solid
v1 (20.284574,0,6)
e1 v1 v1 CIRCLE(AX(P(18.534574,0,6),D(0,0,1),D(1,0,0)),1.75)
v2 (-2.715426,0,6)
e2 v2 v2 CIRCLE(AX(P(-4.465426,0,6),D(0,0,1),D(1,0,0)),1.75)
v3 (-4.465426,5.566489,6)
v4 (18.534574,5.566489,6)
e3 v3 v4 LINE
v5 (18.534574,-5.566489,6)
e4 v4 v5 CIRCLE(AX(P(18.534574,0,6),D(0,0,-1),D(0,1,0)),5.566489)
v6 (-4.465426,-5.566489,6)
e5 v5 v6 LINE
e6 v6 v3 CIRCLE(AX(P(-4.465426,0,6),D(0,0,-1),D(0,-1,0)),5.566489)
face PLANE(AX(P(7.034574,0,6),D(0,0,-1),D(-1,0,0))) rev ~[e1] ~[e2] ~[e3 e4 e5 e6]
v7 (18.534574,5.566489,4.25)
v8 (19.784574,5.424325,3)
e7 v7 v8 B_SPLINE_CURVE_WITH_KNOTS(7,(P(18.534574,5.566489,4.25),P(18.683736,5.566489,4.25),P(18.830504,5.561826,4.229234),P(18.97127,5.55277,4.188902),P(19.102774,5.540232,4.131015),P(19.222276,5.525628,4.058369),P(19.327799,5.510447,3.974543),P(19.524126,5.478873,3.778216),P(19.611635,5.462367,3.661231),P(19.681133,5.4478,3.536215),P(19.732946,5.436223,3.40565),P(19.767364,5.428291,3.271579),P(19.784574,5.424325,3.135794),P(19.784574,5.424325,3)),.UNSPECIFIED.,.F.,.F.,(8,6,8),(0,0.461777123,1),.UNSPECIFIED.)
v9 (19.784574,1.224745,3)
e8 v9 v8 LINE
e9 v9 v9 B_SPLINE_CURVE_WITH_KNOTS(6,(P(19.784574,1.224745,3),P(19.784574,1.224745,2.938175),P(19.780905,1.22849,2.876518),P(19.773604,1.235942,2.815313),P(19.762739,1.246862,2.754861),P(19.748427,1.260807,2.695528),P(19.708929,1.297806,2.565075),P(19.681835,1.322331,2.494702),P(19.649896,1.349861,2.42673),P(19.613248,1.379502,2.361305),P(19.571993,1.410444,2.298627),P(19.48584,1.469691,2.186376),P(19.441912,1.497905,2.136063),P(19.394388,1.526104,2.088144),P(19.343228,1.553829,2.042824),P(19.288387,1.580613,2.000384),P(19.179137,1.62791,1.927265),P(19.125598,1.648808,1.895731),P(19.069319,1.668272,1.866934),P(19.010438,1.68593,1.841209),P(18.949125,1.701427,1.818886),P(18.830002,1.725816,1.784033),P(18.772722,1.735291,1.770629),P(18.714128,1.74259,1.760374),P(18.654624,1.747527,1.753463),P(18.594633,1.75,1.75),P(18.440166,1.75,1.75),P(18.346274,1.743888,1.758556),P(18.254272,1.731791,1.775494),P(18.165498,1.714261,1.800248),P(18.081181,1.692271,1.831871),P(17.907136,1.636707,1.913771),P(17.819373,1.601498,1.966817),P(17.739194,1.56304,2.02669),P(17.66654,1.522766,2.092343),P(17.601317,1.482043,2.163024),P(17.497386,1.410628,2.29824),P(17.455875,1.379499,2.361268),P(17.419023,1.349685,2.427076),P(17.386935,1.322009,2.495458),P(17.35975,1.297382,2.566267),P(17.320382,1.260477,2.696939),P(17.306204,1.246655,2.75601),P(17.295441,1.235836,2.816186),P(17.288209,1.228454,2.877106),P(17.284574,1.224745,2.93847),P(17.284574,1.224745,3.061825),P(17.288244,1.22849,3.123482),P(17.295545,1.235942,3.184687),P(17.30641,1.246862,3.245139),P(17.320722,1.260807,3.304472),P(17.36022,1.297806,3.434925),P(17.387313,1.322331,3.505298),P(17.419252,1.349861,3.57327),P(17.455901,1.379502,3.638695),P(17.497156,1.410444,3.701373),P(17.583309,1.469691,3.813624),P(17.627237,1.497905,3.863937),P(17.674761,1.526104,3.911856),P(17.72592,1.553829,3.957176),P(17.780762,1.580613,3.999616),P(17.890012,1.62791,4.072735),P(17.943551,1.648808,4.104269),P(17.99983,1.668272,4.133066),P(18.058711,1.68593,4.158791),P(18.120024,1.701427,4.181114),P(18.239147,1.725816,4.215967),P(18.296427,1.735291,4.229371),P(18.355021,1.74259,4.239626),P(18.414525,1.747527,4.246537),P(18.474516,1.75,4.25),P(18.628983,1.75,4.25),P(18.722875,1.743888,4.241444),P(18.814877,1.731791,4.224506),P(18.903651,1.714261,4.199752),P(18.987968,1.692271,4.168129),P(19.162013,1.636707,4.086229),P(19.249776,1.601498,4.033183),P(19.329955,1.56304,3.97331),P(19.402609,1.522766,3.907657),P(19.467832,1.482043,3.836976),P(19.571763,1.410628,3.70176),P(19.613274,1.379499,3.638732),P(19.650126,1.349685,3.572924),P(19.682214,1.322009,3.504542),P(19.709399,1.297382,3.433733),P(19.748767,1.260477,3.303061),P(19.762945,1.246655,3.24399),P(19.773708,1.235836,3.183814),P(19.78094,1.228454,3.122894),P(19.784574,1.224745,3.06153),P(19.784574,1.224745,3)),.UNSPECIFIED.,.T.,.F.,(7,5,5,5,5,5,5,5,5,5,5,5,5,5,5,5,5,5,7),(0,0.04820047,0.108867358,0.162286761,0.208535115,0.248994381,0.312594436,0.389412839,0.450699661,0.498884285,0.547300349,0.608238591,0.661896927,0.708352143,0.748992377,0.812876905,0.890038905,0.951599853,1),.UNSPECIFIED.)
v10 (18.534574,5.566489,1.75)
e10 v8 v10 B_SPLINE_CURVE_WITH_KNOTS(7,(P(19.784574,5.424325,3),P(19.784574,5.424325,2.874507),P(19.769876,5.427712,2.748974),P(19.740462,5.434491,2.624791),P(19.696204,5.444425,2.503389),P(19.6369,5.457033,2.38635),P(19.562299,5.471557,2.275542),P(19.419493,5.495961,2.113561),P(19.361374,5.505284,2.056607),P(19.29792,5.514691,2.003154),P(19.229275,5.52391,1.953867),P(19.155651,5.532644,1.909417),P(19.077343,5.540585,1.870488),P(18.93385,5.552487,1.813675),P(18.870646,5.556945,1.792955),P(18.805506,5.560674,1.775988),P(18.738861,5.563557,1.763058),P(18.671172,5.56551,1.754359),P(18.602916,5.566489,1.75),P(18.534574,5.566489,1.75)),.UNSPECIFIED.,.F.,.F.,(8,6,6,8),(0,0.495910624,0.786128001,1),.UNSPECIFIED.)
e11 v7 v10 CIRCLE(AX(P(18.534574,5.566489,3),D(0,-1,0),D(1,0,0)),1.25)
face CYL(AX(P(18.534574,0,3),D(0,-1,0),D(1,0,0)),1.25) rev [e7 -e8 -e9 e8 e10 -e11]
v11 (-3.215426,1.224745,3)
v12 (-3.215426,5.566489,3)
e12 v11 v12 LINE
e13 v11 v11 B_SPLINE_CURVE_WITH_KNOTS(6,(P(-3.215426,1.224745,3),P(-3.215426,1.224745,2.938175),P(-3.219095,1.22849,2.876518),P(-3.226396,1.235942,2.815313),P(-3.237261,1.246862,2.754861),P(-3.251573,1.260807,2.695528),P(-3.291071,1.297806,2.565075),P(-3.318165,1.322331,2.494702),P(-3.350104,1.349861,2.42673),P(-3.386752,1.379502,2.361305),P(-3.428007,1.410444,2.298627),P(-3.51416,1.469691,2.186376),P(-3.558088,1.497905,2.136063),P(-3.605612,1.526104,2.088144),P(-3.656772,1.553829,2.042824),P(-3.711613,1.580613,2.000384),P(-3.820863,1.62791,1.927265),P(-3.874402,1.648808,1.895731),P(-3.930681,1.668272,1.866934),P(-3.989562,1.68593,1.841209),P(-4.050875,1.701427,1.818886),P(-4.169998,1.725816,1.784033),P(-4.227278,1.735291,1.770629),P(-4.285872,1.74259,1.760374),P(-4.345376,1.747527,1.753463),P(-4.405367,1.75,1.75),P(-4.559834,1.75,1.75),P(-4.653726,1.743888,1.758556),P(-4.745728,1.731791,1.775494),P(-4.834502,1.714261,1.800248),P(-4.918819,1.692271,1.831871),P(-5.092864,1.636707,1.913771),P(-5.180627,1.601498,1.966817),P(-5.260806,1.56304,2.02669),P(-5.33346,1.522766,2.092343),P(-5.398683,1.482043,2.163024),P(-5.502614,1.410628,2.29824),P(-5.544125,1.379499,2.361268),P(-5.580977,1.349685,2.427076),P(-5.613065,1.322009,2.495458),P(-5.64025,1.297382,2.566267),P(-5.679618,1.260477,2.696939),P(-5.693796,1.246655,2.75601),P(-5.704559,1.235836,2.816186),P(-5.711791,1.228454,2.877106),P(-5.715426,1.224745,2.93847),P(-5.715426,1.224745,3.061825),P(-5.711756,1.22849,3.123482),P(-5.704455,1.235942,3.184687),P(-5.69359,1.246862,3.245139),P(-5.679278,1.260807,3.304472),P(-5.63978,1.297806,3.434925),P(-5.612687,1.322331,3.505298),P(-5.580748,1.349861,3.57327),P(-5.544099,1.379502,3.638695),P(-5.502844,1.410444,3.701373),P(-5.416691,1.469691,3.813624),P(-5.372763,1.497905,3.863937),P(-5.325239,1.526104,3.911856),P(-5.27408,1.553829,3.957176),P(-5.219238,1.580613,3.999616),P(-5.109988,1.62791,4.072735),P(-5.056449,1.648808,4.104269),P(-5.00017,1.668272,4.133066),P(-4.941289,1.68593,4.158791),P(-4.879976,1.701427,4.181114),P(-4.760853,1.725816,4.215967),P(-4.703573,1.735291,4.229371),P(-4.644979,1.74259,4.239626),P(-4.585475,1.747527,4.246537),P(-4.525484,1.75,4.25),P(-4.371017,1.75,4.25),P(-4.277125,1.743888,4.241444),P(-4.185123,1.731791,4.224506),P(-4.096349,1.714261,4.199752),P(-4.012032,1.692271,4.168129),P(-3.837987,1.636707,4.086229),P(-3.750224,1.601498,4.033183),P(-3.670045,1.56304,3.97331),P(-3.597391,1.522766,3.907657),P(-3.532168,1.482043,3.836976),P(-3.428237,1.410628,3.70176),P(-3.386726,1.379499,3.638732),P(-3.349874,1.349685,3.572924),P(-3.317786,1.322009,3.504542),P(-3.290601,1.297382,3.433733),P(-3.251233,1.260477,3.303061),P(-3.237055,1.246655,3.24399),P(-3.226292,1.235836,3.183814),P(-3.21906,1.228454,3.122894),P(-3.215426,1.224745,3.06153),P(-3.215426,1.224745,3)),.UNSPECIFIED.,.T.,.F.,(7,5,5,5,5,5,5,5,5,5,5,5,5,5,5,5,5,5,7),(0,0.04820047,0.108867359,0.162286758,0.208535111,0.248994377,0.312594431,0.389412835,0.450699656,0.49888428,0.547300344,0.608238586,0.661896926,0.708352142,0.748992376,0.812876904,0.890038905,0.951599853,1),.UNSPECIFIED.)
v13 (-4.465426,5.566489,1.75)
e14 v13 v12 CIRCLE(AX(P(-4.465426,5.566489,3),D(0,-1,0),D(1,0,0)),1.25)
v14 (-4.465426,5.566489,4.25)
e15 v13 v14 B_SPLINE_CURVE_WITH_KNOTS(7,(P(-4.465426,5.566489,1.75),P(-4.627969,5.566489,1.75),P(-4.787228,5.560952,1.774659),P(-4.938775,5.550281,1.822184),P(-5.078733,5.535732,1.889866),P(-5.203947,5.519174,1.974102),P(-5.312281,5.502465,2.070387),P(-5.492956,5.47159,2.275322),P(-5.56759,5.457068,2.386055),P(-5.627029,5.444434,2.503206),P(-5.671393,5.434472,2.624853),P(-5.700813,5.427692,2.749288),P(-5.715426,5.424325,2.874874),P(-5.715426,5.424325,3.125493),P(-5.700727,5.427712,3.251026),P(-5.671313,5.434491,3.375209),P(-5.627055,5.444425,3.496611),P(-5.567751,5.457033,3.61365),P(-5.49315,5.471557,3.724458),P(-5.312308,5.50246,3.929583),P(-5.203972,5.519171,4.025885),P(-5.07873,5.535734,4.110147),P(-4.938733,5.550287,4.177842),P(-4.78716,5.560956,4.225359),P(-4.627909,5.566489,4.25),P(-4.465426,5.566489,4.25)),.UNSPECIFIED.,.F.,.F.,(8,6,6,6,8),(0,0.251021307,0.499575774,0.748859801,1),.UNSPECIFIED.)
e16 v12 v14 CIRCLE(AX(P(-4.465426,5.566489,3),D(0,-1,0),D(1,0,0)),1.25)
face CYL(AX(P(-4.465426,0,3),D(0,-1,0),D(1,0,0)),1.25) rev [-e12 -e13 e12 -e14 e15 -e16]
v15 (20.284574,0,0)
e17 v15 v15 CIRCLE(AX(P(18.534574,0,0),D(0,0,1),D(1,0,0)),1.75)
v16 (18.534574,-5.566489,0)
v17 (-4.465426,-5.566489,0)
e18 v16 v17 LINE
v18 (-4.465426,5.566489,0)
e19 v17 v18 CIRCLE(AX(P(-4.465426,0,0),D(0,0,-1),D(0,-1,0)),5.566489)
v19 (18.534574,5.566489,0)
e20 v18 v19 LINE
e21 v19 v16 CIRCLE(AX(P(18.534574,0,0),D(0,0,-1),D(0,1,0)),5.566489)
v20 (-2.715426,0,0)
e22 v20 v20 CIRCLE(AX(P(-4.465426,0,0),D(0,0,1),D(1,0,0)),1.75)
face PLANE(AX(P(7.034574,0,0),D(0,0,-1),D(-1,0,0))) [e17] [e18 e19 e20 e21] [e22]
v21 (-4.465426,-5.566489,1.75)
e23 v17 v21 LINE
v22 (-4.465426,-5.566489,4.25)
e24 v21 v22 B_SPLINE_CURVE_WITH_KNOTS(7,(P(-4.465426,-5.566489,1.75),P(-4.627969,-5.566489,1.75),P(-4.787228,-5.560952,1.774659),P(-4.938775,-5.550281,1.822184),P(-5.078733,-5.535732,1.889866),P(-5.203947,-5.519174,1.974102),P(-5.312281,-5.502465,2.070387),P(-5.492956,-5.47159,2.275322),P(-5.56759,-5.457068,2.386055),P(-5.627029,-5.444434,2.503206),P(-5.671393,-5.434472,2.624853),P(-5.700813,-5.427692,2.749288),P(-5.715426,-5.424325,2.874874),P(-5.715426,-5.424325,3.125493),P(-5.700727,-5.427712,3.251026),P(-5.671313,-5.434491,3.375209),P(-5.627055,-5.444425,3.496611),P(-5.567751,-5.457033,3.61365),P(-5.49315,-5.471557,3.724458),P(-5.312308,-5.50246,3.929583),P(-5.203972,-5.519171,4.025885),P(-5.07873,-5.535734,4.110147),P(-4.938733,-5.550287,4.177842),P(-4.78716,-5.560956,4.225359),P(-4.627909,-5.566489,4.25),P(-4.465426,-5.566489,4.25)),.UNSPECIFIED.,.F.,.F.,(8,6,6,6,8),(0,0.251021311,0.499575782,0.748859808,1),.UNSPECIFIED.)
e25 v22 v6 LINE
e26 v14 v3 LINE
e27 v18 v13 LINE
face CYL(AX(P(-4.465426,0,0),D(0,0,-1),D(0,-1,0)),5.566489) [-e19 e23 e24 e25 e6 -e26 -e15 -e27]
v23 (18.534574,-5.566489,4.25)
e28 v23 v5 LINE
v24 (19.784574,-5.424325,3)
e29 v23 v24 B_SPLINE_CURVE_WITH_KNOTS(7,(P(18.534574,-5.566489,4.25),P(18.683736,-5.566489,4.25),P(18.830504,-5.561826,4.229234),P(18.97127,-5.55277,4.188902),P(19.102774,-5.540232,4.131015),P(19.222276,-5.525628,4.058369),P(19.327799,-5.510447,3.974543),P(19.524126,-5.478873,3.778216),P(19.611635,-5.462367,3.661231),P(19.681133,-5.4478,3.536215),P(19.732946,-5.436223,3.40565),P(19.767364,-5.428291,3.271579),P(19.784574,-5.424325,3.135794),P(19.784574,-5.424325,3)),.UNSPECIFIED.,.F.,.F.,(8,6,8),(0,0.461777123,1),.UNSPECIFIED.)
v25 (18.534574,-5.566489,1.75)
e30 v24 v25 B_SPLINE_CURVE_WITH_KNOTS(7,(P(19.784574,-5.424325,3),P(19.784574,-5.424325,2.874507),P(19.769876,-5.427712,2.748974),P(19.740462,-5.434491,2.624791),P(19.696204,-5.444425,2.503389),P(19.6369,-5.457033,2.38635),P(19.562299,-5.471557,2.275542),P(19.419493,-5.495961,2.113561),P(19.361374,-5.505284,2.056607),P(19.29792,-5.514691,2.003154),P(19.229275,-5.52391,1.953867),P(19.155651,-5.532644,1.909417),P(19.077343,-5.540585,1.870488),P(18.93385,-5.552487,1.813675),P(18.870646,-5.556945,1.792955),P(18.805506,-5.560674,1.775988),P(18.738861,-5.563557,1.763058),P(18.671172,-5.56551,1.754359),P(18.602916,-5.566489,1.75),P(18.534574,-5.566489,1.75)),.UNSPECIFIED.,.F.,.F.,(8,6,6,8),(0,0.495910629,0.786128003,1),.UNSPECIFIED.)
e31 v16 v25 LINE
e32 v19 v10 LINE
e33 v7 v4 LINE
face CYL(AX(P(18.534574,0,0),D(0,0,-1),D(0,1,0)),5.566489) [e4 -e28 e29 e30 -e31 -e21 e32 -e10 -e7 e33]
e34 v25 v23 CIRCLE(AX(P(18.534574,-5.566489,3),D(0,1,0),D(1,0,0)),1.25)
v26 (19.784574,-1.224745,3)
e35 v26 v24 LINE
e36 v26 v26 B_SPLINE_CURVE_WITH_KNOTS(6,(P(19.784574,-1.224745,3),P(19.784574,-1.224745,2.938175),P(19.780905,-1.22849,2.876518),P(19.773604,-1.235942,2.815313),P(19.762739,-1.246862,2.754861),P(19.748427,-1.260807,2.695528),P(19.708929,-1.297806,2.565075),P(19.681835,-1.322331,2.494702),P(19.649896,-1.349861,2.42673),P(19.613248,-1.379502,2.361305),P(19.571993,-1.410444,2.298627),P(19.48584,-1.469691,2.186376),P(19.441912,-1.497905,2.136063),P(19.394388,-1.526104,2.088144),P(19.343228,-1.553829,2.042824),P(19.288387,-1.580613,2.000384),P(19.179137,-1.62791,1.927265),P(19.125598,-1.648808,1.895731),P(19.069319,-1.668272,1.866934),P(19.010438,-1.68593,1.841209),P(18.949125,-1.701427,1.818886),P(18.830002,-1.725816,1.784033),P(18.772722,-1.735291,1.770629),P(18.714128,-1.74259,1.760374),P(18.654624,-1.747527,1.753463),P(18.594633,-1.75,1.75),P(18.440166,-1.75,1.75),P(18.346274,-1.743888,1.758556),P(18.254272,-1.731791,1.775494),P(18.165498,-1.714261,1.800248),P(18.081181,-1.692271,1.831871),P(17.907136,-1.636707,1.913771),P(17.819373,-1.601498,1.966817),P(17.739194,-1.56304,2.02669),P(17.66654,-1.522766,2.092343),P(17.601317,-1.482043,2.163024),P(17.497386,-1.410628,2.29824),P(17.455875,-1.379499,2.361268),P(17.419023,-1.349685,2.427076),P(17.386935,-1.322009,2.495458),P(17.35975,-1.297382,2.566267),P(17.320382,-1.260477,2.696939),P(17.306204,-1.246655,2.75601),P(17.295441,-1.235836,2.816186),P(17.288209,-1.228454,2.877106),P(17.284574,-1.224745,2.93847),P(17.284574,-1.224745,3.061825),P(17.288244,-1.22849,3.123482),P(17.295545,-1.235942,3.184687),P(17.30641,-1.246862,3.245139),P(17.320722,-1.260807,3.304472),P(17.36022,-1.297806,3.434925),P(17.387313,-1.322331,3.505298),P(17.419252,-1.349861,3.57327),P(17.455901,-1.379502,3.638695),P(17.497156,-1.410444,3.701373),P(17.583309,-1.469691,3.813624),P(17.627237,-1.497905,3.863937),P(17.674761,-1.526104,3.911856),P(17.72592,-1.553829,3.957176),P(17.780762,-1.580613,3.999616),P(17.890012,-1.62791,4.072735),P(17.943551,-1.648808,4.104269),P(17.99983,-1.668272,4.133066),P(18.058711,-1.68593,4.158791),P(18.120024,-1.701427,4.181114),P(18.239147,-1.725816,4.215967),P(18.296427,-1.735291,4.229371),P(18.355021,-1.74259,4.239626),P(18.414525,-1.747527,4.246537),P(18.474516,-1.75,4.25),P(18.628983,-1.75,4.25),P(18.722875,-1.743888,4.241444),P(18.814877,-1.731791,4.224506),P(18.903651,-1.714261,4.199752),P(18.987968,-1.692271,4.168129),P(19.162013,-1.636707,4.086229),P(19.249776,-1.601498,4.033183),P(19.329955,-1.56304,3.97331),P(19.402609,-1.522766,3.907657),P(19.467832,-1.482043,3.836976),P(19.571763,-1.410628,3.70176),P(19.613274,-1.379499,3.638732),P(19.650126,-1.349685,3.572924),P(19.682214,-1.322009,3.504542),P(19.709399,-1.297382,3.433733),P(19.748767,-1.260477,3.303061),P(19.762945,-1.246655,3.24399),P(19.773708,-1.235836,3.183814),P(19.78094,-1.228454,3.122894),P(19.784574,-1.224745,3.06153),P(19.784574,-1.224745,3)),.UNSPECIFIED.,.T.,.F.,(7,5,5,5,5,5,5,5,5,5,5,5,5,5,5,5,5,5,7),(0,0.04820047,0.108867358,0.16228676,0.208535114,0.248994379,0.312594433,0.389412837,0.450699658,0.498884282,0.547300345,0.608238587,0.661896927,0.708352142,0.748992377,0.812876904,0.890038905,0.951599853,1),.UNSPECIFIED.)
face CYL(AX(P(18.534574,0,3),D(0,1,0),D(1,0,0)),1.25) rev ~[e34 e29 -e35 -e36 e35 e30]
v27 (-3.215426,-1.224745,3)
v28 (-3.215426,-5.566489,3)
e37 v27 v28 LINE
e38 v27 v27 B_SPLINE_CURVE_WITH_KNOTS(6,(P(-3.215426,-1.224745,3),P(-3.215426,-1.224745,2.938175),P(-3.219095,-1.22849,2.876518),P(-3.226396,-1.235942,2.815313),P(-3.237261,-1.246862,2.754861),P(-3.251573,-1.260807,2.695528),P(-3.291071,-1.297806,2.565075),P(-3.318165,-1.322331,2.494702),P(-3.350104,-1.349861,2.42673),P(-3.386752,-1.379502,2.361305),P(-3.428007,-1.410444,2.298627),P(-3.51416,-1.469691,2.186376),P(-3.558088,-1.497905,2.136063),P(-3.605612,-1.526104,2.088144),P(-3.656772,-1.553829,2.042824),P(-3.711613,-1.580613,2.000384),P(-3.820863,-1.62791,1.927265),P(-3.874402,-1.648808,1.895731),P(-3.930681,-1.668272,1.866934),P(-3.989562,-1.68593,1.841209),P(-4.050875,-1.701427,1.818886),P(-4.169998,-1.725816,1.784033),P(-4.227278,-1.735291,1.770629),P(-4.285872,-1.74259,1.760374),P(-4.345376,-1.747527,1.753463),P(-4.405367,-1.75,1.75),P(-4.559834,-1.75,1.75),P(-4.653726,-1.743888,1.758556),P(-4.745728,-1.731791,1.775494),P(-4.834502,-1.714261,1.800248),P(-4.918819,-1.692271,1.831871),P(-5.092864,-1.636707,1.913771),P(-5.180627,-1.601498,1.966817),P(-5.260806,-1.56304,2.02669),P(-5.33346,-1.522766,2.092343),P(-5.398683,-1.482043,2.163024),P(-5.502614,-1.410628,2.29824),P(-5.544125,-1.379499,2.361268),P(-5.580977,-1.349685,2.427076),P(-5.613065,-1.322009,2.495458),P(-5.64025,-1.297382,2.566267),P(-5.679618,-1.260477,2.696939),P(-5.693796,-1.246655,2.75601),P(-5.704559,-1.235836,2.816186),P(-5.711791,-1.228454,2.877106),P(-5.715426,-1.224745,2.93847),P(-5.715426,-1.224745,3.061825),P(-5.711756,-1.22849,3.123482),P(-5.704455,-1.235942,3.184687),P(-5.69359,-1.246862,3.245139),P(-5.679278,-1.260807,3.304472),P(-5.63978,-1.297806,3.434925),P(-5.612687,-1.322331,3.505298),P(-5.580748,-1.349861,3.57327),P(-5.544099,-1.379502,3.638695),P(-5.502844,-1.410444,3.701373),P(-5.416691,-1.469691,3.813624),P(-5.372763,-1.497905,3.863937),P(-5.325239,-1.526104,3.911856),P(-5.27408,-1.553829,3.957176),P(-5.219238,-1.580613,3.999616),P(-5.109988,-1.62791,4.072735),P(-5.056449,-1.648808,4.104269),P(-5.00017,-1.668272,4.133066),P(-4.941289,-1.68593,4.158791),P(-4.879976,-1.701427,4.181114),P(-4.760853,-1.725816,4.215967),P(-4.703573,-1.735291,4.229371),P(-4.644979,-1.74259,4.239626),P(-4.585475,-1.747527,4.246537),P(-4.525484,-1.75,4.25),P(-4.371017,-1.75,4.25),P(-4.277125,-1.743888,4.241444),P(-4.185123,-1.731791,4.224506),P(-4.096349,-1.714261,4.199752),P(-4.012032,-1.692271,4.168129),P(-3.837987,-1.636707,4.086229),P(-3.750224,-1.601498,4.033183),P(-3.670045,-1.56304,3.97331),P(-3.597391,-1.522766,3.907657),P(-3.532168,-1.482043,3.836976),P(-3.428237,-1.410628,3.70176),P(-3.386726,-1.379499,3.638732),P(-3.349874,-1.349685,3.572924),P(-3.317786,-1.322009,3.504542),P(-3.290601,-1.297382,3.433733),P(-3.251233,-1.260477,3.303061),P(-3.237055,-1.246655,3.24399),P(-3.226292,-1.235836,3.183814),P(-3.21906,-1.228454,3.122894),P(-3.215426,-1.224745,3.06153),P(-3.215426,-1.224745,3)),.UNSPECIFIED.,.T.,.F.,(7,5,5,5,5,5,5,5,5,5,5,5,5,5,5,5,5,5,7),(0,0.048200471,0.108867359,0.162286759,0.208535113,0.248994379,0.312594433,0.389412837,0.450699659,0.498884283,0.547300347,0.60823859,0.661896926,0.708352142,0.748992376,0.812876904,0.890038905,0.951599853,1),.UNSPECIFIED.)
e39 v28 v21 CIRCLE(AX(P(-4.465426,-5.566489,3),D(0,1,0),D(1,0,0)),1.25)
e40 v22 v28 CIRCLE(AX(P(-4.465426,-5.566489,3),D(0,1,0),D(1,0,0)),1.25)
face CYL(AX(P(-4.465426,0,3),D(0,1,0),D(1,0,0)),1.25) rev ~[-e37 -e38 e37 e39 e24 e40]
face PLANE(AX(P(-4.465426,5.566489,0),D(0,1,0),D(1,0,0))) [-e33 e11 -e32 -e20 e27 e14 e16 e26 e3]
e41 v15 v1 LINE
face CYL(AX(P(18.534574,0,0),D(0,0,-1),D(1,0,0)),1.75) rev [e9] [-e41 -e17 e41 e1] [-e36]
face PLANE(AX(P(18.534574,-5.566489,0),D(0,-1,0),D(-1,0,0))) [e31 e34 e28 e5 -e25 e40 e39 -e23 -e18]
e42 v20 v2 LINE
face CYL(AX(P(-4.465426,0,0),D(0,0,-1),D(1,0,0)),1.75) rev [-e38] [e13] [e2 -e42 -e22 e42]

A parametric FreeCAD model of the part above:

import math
import FreeCAD as App
import Part
import Sketcher
from FreeCAD import Vector

doc = App.newDocument("Part")
body = doc.addObject("PartDesign::Body", "Body")

# Sketch on XY plane
sketch1 = body.newObject("Sketcher::SketchObject", "Sketch")
sketch1.AttachmentSupport = (doc.getObject("XY_Plane"), [""])
sketch1.MapMode = "FlatFace"
sketch1.addGeometry([
    Part.LineSegment(Vector(18.5, 5.6, 0), Vector(-4.5, 5.6, 0)),  # 0
    Part.ArcOfCircle(Part.Circle(Vector(-4.5, 0, 0), Vector(0, 0, 1), 5.6), math.radians(90), math.radians(270)),  # 1
    Part.LineSegment(Vector(-4.5, -5.6, 0), Vector(18.5, -5.6, 0)),  # 2
    Part.ArcOfCircle(Part.Circle(Vector(18.5, 0, 0), Vector(0, 0, 1), 5.6), math.radians(-90), math.radians(90)),  # 3
    Part.Circle(Vector(18.5, 0, 0), Vector(0, 0, 1), 1.8),  # 4
    Part.Circle(Vector(-4.5, 0, 0), Vector(0, 0, 1), 1.8),  # 5
], False)
sketch1.addConstraint([
    Sketcher.Constraint("Tangent", 0, 2, 1, 1),
    Sketcher.Constraint("Tangent", 1, 2, 2, 1),
    Sketcher.Constraint("Tangent", 2, 2, 3, 1),
    Sketcher.Constraint("Tangent", 3, 2, 0, 1),
    Sketcher.Constraint("Horizontal", 0),
    Sketcher.Constraint("Horizontal", 2),
    Sketcher.Constraint("Coincident", 4, 3, 3, 3),
    Sketcher.Constraint("Coincident", 5, 3, 1, 3),
    Sketcher.Constraint("Equal", 4, 5),
    Sketcher.Constraint("PointOnObject", 1, 3, -1),
    Sketcher.Constraint("Diameter", 4, 3.5),
    Sketcher.Constraint("DistanceX", 0, 2, 0, 1, 23.0),
    Sketcher.Constraint("Radius", 1, 5.566489),
    Sketcher.Constraint("DistanceX", 1, 3, -1, 1, 4.465426),
])
pad1 = body.newObject("PartDesign::Pad", "Pad")
pad1.Profile = sketch1
pad1.Length = 6

# Sketch on XZ plane
sketch2 = body.newObject("Sketcher::SketchObject", "Sketch001")
sketch2.AttachmentSupport = (doc.getObject("XZ_Plane"), [""])
sketch2.MapMode = "FlatFace"
sketch2.addGeometry([
    Part.Circle(Vector(18.5, 3, 0), Vector(0, 0, 1), 1.2),
    Part.Circle(Vector(-4.5, 3, 0), Vector(0, 0, 1), 1.2),
], False)
sketch2.addConstraint([
    Sketcher.Constraint("Equal", 0, 1),
    Sketcher.Constraint("Horizontal", 0, 3, 1, 3),
    Sketcher.Constraint("Diameter", 0, 2.5),
    Sketcher.Constraint("DistanceY", -1, 1, 0, 3, 3.0),
    Sketcher.Constraint("DistanceX", 1, 3, 0, 3, 23.0),
    Sketcher.Constraint("DistanceX", -1, 1, 0, 3, 18.534574),
])
pocket1 = body.newObject("PartDesign::Pocket", "Pocket")
pocket1.Profile = sketch2
pocket1.Type = "ThroughAll"
pocket1.Midplane = True

doc.recompute()
